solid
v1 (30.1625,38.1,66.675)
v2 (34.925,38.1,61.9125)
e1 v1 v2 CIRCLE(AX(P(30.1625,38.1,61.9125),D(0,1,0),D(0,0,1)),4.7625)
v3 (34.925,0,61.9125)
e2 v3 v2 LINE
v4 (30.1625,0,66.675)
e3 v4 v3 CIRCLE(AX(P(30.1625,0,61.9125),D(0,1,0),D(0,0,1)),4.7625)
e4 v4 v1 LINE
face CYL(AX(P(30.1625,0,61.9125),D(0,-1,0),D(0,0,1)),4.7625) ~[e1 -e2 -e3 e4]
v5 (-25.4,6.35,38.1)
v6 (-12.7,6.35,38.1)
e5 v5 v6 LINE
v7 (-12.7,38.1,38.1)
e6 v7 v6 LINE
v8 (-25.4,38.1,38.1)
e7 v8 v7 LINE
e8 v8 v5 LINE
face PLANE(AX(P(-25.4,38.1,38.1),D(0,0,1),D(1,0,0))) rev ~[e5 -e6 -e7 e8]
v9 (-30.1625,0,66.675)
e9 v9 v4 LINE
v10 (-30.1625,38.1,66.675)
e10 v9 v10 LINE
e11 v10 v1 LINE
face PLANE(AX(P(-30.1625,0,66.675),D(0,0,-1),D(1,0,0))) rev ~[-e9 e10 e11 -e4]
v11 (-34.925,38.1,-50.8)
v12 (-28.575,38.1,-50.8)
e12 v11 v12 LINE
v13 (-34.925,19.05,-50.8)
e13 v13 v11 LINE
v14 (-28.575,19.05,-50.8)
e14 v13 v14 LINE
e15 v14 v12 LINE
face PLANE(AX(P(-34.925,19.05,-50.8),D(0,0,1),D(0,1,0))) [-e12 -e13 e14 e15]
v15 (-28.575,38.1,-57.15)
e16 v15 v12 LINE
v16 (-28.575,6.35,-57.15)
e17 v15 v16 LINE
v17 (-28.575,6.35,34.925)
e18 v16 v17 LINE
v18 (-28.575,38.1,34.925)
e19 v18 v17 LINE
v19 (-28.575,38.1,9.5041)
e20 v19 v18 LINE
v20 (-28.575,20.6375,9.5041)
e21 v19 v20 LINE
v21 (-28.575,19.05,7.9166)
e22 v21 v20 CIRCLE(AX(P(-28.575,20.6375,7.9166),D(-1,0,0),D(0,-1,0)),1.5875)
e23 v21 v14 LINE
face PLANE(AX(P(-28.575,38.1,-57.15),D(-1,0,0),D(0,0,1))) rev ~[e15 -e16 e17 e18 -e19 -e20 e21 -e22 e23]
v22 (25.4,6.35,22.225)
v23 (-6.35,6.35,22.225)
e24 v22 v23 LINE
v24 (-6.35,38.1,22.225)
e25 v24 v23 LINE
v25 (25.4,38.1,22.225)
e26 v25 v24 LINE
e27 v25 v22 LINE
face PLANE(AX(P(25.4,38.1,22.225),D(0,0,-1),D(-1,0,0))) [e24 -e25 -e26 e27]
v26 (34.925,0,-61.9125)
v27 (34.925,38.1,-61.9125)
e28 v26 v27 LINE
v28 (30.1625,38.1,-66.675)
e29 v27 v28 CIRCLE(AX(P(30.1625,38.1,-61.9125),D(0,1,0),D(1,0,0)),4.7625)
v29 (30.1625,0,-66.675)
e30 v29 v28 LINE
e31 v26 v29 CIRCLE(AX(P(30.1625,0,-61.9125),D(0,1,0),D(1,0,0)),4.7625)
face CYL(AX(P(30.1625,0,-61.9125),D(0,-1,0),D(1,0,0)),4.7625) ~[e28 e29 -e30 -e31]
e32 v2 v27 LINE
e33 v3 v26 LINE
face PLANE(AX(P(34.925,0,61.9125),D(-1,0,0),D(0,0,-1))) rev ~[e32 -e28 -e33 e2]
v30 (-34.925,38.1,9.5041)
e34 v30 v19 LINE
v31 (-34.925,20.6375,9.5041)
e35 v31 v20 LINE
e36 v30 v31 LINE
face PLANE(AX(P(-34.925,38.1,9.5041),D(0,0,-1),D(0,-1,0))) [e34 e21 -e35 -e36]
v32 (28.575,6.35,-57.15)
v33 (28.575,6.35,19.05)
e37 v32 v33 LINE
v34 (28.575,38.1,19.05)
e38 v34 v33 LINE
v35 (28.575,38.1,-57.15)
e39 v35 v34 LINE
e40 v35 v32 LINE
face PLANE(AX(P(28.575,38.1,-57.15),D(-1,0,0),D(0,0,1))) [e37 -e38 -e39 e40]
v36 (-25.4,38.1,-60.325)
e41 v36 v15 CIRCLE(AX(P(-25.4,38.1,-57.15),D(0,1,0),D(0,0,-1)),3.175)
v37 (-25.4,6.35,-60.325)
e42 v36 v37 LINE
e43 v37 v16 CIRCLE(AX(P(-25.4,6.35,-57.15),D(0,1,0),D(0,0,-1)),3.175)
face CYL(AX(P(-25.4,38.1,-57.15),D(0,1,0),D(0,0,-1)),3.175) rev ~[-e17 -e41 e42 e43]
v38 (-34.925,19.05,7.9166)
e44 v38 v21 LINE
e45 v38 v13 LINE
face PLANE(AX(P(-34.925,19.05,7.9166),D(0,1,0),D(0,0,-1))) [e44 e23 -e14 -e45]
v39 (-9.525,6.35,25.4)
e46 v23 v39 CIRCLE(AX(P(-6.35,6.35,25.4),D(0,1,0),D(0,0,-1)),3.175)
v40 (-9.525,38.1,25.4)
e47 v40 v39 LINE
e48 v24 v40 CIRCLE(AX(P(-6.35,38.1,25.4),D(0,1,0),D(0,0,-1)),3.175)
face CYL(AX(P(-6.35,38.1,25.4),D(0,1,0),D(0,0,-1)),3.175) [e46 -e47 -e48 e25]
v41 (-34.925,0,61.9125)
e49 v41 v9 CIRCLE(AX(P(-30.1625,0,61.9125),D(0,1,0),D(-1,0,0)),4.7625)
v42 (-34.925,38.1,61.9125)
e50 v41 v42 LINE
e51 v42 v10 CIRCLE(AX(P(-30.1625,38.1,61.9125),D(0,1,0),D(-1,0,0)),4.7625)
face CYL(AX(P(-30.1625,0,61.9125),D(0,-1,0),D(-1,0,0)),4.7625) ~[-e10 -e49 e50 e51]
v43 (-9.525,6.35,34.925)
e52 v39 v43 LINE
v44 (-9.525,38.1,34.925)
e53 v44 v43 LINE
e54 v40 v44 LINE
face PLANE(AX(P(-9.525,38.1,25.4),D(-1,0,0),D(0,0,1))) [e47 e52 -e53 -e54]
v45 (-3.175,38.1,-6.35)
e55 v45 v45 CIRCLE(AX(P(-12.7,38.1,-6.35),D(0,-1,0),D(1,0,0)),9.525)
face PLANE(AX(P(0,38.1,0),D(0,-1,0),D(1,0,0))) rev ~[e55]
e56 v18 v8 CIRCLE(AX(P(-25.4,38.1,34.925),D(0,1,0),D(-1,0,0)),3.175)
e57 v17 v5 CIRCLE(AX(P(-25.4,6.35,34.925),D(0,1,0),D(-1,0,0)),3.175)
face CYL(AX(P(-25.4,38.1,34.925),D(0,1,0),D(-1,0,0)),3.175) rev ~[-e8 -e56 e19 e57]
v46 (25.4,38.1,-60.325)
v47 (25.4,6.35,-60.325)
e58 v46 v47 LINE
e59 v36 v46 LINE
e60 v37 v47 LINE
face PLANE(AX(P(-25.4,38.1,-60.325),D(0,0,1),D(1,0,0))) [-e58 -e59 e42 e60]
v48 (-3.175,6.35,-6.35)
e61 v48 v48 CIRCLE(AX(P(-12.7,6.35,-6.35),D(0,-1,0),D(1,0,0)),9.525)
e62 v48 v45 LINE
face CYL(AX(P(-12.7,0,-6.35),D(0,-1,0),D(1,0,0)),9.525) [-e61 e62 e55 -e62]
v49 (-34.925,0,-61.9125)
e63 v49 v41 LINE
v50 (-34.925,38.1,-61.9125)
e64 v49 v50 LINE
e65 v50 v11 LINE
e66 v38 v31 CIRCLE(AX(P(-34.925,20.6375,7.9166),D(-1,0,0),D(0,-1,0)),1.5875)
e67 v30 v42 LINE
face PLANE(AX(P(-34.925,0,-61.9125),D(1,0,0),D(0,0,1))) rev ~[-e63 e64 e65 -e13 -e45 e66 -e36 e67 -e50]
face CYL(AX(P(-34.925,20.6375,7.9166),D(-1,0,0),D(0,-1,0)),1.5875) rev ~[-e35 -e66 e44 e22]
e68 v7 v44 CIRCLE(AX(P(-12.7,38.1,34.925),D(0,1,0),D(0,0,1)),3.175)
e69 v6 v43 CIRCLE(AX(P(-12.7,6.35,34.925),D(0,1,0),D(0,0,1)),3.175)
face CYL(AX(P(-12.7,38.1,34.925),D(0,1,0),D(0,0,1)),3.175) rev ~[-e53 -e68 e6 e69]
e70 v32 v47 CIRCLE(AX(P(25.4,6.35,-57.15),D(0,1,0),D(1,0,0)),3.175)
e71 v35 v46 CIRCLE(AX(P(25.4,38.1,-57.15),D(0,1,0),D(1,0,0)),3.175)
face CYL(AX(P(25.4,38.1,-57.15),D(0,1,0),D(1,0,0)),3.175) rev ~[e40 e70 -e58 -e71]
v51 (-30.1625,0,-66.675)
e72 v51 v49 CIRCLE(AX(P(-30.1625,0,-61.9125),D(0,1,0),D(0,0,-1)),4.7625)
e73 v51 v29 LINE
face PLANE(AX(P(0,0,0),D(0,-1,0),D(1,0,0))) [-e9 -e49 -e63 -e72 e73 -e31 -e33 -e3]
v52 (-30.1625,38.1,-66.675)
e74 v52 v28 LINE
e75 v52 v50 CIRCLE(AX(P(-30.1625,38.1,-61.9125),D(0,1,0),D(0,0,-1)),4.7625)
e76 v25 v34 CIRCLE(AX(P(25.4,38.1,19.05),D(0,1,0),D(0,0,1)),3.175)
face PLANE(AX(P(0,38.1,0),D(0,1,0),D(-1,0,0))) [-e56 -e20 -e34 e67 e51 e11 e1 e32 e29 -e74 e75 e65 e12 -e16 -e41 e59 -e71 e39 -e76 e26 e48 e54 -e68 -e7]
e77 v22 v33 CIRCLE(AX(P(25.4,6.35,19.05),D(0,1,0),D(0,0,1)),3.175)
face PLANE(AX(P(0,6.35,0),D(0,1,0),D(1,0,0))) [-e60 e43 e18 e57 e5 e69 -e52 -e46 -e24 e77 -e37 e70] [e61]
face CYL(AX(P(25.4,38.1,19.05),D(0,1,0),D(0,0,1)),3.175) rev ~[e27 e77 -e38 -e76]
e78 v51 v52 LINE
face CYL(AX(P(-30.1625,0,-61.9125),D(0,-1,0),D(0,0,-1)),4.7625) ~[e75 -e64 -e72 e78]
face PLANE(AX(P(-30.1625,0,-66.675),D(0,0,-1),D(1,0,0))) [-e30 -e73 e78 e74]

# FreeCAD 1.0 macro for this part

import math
import FreeCAD as App
import Part
import Sketcher
Q = App.Units.Quantity

doc = App.newDocument("Part")
body = doc.addObject("PartDesign::Body", "Body")

# Sketch on XZ plane
sketch1 = body.newObject("Sketcher::SketchObject", "Sketch")
sketch1.AttachmentSupport = (doc.getObject("XZ_Plane"), [""])
sketch1.MapMode = "FlatFace"
sketch1.addGeometry([
    Part.LineSegment(App.Vector(34.9, 61.9, 0), App.Vector(34.9, -61.9, 0)),  # 0
    Part.ArcOfCircle(Part.Circle(App.Vector(30.2, -61.9, 0), App.Vector(0, 0, 1), 4.8), math.radians(-90), math.radians(0)),  # 1
    Part.LineSegment(App.Vector(30.2, -66.7, 0), App.Vector(-30.2, -66.7, 0)),  # 2
    Part.ArcOfCircle(Part.Circle(App.Vector(-30.2, -61.9, 0), App.Vector(0, 0, 1), 4.8), math.radians(180), math.radians(270)),  # 3
    Part.LineSegment(App.Vector(-34.9, -61.9, 0), App.Vector(-34.9, 61.9, 0)),  # 4
    Part.ArcOfCircle(Part.Circle(App.Vector(-30.2, 61.9, 0), App.Vector(0, 0, 1), 4.8), math.radians(90), math.radians(180)),  # 5
    Part.LineSegment(App.Vector(-30.2, 66.7, 0), App.Vector(30.2, 66.7, 0)),  # 6
    Part.ArcOfCircle(Part.Circle(App.Vector(30.2, 61.9, 0), App.Vector(0, 0, 1), 4.8), math.radians(0), math.radians(90)),  # 7
], False)
sketch1.addConstraint([
    Sketcher.Constraint("Tangent", 0, 2, 1, 2),
    Sketcher.Constraint("Tangent", 1, 1, 2, 1),
    Sketcher.Constraint("Tangent", 2, 2, 3, 2),
    Sketcher.Constraint("Tangent", 3, 1, 4, 1),
    Sketcher.Constraint("Tangent", 4, 2, 5, 2),
    Sketcher.Constraint("Tangent", 5, 1, 6, 1),
    Sketcher.Constraint("Tangent", 6, 2, 7, 2),
    Sketcher.Constraint("Tangent", 7, 1, 0, 1),
    Sketcher.Constraint("Vertical", 0),
    Sketcher.Constraint("Horizontal", 2),
    Sketcher.Constraint("Vertical", 4),
    Sketcher.Constraint("Horizontal", 6),
    Sketcher.Constraint("Equal", 1, 3),
    Sketcher.Constraint("Equal", 3, 5),
    Sketcher.Constraint("Equal", 5, 7),
    Sketcher.Constraint("Symmetric", 1, 3, 5, 3, -1, 1),
    Sketcher.Constraint("Radius", 1, Q("0.1875 in")),
    Sketcher.Constraint("DistanceX", 2, 2, 2, 1, Q("2.375 in")),
    Sketcher.Constraint("DistanceY", 0, 2, 0, 1, Q("4.875 in")),
])
pad1 = body.newObject("PartDesign::Pad", "Pad")
pad1.Profile = sketch1
pad1.Length = Q("1.5 in")
pad1.Reversed = True

# Sketch on XZ plane
sketch2 = body.newObject("Sketcher::SketchObject", "Sketch001")
sketch2.AttachmentSupport = (doc.getObject("XZ_Plane"), [""])
sketch2.MapMode = "FlatFace"
sketch2.AttachmentOffset = App.Placement(App.Vector(0, 0, -1.5 * 25.4), App.Rotation())
sketch2.addGeometry([
    Part.LineSegment(App.Vector(25.4, -60.3, 0), App.Vector(-25.4, -60.3, 0)),  # 0
    Part.ArcOfCircle(Part.Circle(App.Vector(-25.4, -57.1, 0), App.Vector(0, 0, 1), 3.2), math.radians(180), math.radians(270)),  # 1
    Part.LineSegment(App.Vector(-28.6, -57.1, 0), App.Vector(-28.6, 34.9, 0)),  # 2
    Part.ArcOfCircle(Part.Circle(App.Vector(-25.4, 34.9, 0), App.Vector(0, 0, 1), 3.2), math.radians(90), math.radians(180)),  # 3
    Part.LineSegment(App.Vector(-25.4, 38.1, 0), App.Vector(-12.7, 38.1, 0)),  # 4
    Part.ArcOfCircle(Part.Circle(App.Vector(-12.7, 34.9, 0), App.Vector(0, 0, 1), 3.2), math.radians(0), math.radians(90)),  # 5
    Part.LineSegment(App.Vector(-9.5, 34.9, 0), App.Vector(-9.5, 25.4, 0)),  # 6
    Part.ArcOfCircle(Part.Circle(App.Vector(-6.3, 25.4, 0), App.Vector(0, 0, 1), 3.2), math.radians(180), math.radians(270)),  # 7
    Part.LineSegment(App.Vector(-6.3, 22.2, 0), App.Vector(25.4, 22.2, 0)),  # 8
    Part.ArcOfCircle(Part.Circle(App.Vector(25.4, 19.1, 0), App.Vector(0, 0, 1), 3.2), math.radians(0), math.radians(90)),  # 9
    Part.LineSegment(App.Vector(28.6, 19.1, 0), App.Vector(28.6, -57.1, 0)),  # 10
    Part.ArcOfCircle(Part.Circle(App.Vector(25.4, -57.1, 0), App.Vector(0, 0, 1), 3.2), math.radians(-90), math.radians(0)),  # 11
], False)
sketch2.addConstraint([
    Sketcher.Constraint("Tangent", 0, 2, 1, 2),
    Sketcher.Constraint("Tangent", 1, 1, 2, 1),
    Sketcher.Constraint("Tangent", 2, 2, 3, 2),
    Sketcher.Constraint("Tangent", 3, 1, 4, 1),
    Sketcher.Constraint("Tangent", 4, 2, 5, 2),
    Sketcher.Constraint("Tangent", 5, 1, 6, 1),
    Sketcher.Constraint("Tangent", 6, 2, 7, 1),
    Sketcher.Constraint("Tangent", 7, 2, 8, 1),
    Sketcher.Constraint("Tangent", 8, 2, 9, 2),
    Sketcher.Constraint("Tangent", 9, 1, 10, 1),
    Sketcher.Constraint("Tangent", 10, 2, 11, 2),
    Sketcher.Constraint("Tangent", 11, 1, 0, 1),
    Sketcher.Constraint("Horizontal", 0),
    Sketcher.Constraint("Vertical", 2),
    Sketcher.Constraint("Horizontal", 4),
    Sketcher.Constraint("Vertical", 6),
    Sketcher.Constraint("Horizontal", 8),
    Sketcher.Constraint("Vertical", 10),
    Sketcher.Constraint("Equal", 1, 3),
    Sketcher.Constraint("Equal", 3, 5),
    Sketcher.Constraint("Equal", 5, 7),
    Sketcher.Constraint("Equal", 7, 9),
    Sketcher.Constraint("Equal", 9, 11),
    Sketcher.Constraint("Radius", 1, Q("0.125 in")),
    Sketcher.Constraint("DistanceY", -1, 1, 3, 1, Q("1.5 in")),
    Sketcher.Constraint("DistanceX", 5, 3, 9, 3, Q("1.5 in")),
    Sketcher.Constraint("DistanceX", 0, 2, 0, 1, Q("2 in")),
    Sketcher.Constraint("DistanceY", 10, 2, 10, 1, Q("3 in")),
    Sketcher.Constraint("DistanceX", 7, 3, -1, 1, Q("0.25 in")),
    Sketcher.Constraint("DistanceY", -1, 1, 7, 3, Q("1 in")),
])
pocket1 = body.newObject("PartDesign::Pocket", "Pocket")
pocket1.Profile = sketch2
pocket1.Length = Q("1.25 in")
pocket1.Reversed = True

# Sketch on YZ plane
sketch3 = body.newObject("Sketcher::SketchObject", "Sketch002")
sketch3.AttachmentSupport = (doc.getObject("YZ_Plane"), [""])
sketch3.MapMode = "FlatFace"
sketch3.AttachmentOffset = App.Placement(App.Vector(0, 0, -1.375 * 25.4), App.Rotation())
sketch3.addGeometry([
    Part.LineSegment(App.Vector(38.1, 9.5, 0), App.Vector(38.1, -50.8, 0)),  # 0
    Part.LineSegment(App.Vector(38.1, -50.8, 0), App.Vector(19.1, -50.8, 0)),  # 1
    Part.LineSegment(App.Vector(19.1, -50.8, 0), App.Vector(19.1, 7.9, 0)),  # 2
    Part.ArcOfCircle(Part.Circle(App.Vector(20.6, 7.9, 0), App.Vector(0, 0, 1), 1.6), math.radians(90), math.radians(180)),  # 3
    Part.LineSegment(App.Vector(20.6, 9.5, 0), App.Vector(38.1, 9.5, 0)),  # 4
], False)
sketch3.addConstraint([
    Sketcher.Constraint("Coincident", 0, 2, 1, 1),
    Sketcher.Constraint("Coincident", 1, 2, 2, 1),
    Sketcher.Constraint("Tangent", 2, 2, 3, 2),
    Sketcher.Constraint("Tangent", 3, 1, 4, 1),
    Sketcher.Constraint("Coincident", 4, 2, 0, 1),
    Sketcher.Constraint("Vertical", 0),
    Sketcher.Constraint("Horizontal", 1),
    Sketcher.Constraint("Vertical", 2),
    Sketcher.Constraint("Horizontal", 4),
    Sketcher.Constraint("Radius", 3, Q("0.0625 in")),
    Sketcher.Constraint("DistanceX", 1, 2, 1, 1, Q("0.75 in")),
    Sketcher.Constraint("DistanceX", -1, 1, 1, 2, Q("0.75 in")),
    Sketcher.Constraint("DistanceY", 0, 2, -1, 1, Q("2 in")),
    Sketcher.Constraint("DistanceY", 0, 2, 0, 1, Q("60.304 mm")),
])
pocket2 = body.newObject("PartDesign::Pocket", "Pocket001")
pocket2.Profile = sketch3
pocket2.Length = Q("0.25 in")
pocket2.Reversed = True

# Sketch on XZ plane
sketch4 = body.newObject("Sketcher::SketchObject", "Sketch003")
sketch4.AttachmentSupport = (doc.getObject("XZ_Plane"), [""])
sketch4.MapMode = "FlatFace"
sketch4.addGeometry(Part.Circle(App.Vector(-13, -6, 0), App.Vector(0, 0, 1), 10), False)
sketch4.addConstraint([
    Sketcher.Constraint("Diameter", 0, Q("0.75 in")),
    Sketcher.Constraint("DistanceX", 0, 3, -1, 1, Q("0.5 in")),
    Sketcher.Constraint("DistanceY", 0, 3, -1, 1, Q("0.25 in")),
])
pad2 = body.newObject("PartDesign::Pad", "Pad001")
pad2.Profile = sketch4
pad2.Length = Q("1.5 in")
pad2.Reversed = True

doc.recompute()
